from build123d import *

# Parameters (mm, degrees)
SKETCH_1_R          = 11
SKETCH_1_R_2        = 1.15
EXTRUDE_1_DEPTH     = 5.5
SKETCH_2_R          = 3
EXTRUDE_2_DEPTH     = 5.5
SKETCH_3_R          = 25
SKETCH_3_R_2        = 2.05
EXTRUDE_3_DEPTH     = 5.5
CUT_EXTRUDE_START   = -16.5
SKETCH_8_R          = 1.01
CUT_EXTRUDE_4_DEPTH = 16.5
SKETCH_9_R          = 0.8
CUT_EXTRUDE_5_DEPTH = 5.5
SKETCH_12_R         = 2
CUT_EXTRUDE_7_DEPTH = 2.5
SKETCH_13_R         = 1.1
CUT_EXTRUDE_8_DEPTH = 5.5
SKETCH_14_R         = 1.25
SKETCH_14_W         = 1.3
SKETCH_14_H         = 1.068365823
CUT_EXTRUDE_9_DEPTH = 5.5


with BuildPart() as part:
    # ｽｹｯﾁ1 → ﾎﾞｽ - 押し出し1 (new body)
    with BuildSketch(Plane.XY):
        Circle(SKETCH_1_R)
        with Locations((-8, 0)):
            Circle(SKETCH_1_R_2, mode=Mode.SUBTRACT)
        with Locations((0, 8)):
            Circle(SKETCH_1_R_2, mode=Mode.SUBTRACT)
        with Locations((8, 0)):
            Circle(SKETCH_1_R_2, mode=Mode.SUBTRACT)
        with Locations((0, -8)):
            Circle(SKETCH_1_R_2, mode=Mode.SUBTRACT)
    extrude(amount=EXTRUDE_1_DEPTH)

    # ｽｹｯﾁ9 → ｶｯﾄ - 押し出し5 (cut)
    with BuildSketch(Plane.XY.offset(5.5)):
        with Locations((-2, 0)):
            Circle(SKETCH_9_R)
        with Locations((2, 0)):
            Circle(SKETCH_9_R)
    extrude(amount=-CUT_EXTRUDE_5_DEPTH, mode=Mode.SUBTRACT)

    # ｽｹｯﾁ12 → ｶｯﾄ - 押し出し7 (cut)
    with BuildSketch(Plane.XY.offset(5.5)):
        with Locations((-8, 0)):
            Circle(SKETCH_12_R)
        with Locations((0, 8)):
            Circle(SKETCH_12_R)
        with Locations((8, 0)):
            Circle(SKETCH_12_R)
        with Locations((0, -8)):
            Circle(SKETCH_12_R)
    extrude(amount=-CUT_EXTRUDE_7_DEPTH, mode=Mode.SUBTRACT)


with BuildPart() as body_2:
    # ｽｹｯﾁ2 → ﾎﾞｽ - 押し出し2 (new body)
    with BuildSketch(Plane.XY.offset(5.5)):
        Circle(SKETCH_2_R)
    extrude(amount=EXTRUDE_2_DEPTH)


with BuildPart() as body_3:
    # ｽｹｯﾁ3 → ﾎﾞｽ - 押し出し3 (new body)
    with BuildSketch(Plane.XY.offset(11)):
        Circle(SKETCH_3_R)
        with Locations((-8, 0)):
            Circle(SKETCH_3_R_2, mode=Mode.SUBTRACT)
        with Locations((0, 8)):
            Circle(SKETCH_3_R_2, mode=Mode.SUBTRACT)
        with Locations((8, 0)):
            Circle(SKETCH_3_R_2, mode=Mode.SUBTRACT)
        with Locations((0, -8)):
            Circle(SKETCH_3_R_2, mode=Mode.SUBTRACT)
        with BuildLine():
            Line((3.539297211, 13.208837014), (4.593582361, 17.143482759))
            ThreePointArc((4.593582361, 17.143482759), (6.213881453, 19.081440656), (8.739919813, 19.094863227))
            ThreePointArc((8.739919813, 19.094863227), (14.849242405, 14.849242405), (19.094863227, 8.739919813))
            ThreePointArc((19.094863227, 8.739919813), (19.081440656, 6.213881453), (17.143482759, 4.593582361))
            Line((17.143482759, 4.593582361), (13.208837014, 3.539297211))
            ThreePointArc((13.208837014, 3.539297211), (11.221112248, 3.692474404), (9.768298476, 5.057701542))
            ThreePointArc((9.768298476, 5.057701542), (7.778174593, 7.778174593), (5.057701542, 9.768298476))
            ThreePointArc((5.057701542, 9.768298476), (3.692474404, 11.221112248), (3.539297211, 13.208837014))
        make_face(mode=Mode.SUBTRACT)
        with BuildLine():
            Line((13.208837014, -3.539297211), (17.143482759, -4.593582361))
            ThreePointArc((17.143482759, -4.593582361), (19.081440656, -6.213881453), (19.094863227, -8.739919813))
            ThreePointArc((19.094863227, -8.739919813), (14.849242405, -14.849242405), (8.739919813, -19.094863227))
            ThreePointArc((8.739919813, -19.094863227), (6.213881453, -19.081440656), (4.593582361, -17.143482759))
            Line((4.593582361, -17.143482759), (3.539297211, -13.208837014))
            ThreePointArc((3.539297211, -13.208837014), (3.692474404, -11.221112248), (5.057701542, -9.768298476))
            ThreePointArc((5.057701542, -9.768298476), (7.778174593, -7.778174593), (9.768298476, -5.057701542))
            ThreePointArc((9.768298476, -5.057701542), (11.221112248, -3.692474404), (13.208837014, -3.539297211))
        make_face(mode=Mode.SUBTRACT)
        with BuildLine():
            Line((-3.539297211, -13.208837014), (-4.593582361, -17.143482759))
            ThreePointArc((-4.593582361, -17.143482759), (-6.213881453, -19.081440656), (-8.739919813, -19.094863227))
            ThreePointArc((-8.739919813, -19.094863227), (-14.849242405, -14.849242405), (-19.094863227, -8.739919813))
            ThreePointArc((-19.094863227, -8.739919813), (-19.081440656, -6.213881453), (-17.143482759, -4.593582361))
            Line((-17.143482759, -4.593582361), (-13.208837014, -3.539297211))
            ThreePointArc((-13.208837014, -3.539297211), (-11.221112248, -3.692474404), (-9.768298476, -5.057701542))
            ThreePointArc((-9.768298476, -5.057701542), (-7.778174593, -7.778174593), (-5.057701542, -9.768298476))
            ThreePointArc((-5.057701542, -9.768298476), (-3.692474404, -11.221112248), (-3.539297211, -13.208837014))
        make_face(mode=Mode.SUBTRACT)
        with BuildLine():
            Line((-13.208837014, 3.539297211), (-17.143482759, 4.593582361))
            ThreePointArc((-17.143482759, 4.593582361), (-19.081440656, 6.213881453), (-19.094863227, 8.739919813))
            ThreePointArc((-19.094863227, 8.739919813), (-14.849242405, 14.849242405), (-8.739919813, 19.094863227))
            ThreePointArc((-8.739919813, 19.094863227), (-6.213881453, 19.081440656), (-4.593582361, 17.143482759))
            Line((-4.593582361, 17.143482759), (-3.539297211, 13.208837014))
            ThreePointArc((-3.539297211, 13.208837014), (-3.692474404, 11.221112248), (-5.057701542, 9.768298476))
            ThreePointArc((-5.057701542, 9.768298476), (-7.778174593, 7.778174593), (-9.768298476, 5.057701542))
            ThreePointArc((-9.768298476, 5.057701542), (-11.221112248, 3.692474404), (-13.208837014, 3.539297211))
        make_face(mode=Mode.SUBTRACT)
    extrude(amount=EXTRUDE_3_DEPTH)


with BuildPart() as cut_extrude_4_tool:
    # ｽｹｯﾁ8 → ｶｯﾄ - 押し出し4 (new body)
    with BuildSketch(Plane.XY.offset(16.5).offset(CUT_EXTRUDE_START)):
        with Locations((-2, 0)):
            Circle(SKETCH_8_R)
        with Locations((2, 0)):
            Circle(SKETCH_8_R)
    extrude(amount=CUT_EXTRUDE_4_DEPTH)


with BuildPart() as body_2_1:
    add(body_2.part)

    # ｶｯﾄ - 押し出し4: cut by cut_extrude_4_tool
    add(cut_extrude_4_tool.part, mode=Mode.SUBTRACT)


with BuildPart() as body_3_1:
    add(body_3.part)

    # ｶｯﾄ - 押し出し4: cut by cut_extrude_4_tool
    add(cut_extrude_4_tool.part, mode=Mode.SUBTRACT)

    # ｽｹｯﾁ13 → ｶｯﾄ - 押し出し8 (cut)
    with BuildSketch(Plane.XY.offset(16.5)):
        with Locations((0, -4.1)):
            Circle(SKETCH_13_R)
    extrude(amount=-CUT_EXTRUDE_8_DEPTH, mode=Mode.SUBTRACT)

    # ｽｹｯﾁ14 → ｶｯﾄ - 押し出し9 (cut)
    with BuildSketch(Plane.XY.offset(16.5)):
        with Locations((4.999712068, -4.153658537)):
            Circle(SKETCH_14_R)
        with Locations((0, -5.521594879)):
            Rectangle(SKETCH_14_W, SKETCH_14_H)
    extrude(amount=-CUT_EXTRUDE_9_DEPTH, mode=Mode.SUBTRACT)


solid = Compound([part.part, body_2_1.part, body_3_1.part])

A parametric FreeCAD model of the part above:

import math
import FreeCAD as App
import Part
import Sketcher
from FreeCAD import Vector
Q = App.Units.Quantity

doc = App.newDocument("Part")
params = doc.addObject("Spreadsheet::Sheet", "Params")
for row, (alias, value) in enumerate([
    ("sketch1_diameter", "22 mm"),
    ("sketch1_diameter2", "2.3 mm"),
    ("pad1_length", "5.5 mm"),
    ("sketch2_diameter", "1.6 mm"),
    ("pocket1_length", "5.5 mm"),
    ("sketch3_diameter", "4 mm"),
    ("pocket2_length", "2.5 mm"),
    ("sketch4_diameter", "6 mm"),
    ("pad2_length", "5.5 mm"),
    ("sketch5_diameter", "50 mm"),
    ("sketch5_radius", "3 mm"),
    ("sketch5_radius2", "21 mm"),
    ("sketch5_radius3", "11 mm"),
    ("sketch5_diameter2", "4.1 mm"),
    ("pad3_length", "5.5 mm"),
    ("sketch6_diameter", "2.02 mm"),
    ("pad4_length", "16.5 mm"),
    ("sketch7_diameter", "2.2 mm"),
    ("pocket3_length", "5.5 mm"),
    ("sketch8_diameter", "2.5 mm"),
    ("sketch8_width", "1.3 mm"),
    ("pocket4_length", "5.5 mm"),
], start=1):
    params.set(f"A{row}", alias)
    params.set(f"B{row}", "=" + value)
    params.setAlias(f"B{row}", alias)

body = doc.addObject("PartDesign::Body", "Body")

# Sketch on XY plane
sketch1 = body.newObject("Sketcher::SketchObject", "Sketch")
sketch1.AttachmentSupport = (doc.getObject("XY_Plane"), [""])
sketch1.MapMode = "FlatFace"
sketch1.addGeometry([
    Part.Circle(Vector(0, 0, 0), Vector(0, 0, 1), 11),  # 0
    Part.Circle(Vector(0, -8, 0), Vector(0, 0, 1), 1.15),  # 1
    Part.Circle(Vector(-8, 0, 0), Vector(0, 0, 1), 1.15),  # 2
    Part.Circle(Vector(8, 0, 0), Vector(0, 0, 1), 1.15),  # 3
    Part.Circle(Vector(0, 8, 0), Vector(0, 0, 1), 1.15),  # 4
], False)
sketch1.addConstraint([
    Sketcher.Constraint("Coincident", 0, 3, -1, 1),
    Sketcher.Constraint("Equal", 1, 2),
    Sketcher.Constraint("Equal", 2, 3),
    Sketcher.Constraint("Equal", 3, 4),
    Sketcher.Constraint("Symmetric", 2, 3, 3, 3, -1, 1),
    Sketcher.Constraint("Symmetric", 1, 3, 4, 3, -1, 1),
    Sketcher.Constraint("PointOnObject", 1, 3, -2),
    Sketcher.Constraint("PointOnObject", 2, 3, -1),
    Sketcher.Constraint("Diameter", 0, 22.0),
    Sketcher.Constraint("Diameter", 1, 2.3),
    Sketcher.Constraint("DistanceY", 1, 3, -1, 1, 8.0),
    Sketcher.Constraint("DistanceX", 2, 3, -1, 1, 8.0),
])
sketch1.setExpression("Constraints[8]", "Params.sketch1_diameter")
sketch1.setExpression("Constraints[9]", "Params.sketch1_diameter2")
pad1 = body.newObject("PartDesign::Pad", "Pad")
pad1.Profile = sketch1
pad1.setExpression("Length", "Params.pad1_length")

# Sketch on XY plane
sketch2 = body.newObject("Sketcher::SketchObject", "Sketch001")
sketch2.AttachmentSupport = (doc.getObject("XY_Plane"), [""])
sketch2.MapMode = "FlatFace"
sketch2.AttachmentOffset = App.Placement(Vector(0, 0, 5.5), App.Rotation())
sketch2.addGeometry([
    Part.Circle(Vector(-2, 0, 0), Vector(0, 0, 1), 0.8),
    Part.Circle(Vector(2, 0, 0), Vector(0, 0, 1), 0.8),
], False)
sketch2.addConstraint([
    Sketcher.Constraint("Equal", 0, 1),
    Sketcher.Constraint("Symmetric", 0, 3, 1, 3, -1, 1),
    Sketcher.Constraint("PointOnObject", 0, 3, -1),
    Sketcher.Constraint("Diameter", 0, 1.6),
    Sketcher.Constraint("DistanceX", 0, 3, -1, 1, 2.0),
])
sketch2.setExpression("Constraints[3]", "Params.sketch2_diameter")
pocket1 = body.newObject("PartDesign::Pocket", "Pocket")
pocket1.Profile = sketch2
pocket1.setExpression("Length", "Params.pocket1_length")

# Sketch on XY plane
sketch3 = body.newObject("Sketcher::SketchObject", "Sketch002")
sketch3.AttachmentSupport = (doc.getObject("XY_Plane"), [""])
sketch3.MapMode = "FlatFace"
sketch3.AttachmentOffset = App.Placement(Vector(0, 0, 5.5), App.Rotation())
sketch3.addGeometry([
    Part.Circle(Vector(-8, 0, 0), Vector(0, 0, 1), 2),
    Part.Circle(Vector(0, 8, 0), Vector(0, 0, 1), 2),
    Part.Circle(Vector(8, 0, 0), Vector(0, 0, 1), 2),
    Part.Circle(Vector(0, -8, 0), Vector(0, 0, 1), 2),
], False)
sketch3.addConstraint([
    Sketcher.Constraint("Equal", 0, 1),
    Sketcher.Constraint("Equal", 1, 2),
    Sketcher.Constraint("Equal", 2, 3),
    Sketcher.Constraint("Symmetric", 0, 3, 2, 3, -1, 1),
    Sketcher.Constraint("Symmetric", 1, 3, 3, 3, -1, 1),
    Sketcher.Constraint("PointOnObject", 0, 3, -1),
    Sketcher.Constraint("PointOnObject", 1, 3, -2),
    Sketcher.Constraint("Diameter", 0, 4.0),
    Sketcher.Constraint("DistanceX", 0, 3, -1, 1, 8.0),
    Sketcher.Constraint("DistanceY", -1, 1, 1, 3, 8.0),
])
sketch3.setExpression("Constraints[7]", "Params.sketch3_diameter")
pocket2 = body.newObject("PartDesign::Pocket", "Pocket001")
pocket2.Profile = sketch3
pocket2.setExpression("Length", "Params.pocket2_length")
body2 = doc.addObject("PartDesign::Body", "Body001")

# Sketch on XY plane
sketch4 = body2.newObject("Sketcher::SketchObject", "Sketch003")
sketch4.AttachmentSupport = (doc.getObject("XY_Plane001"), [""])
sketch4.MapMode = "FlatFace"
sketch4.AttachmentOffset = App.Placement(Vector(0, 0, 5.5), App.Rotation())
sketch4.addGeometry(Part.Circle(Vector(0, 0, 0), Vector(0, 0, 1), 3), False)
sketch4.addConstraint([
    Sketcher.Constraint("Coincident", 0, 3, -1, 1),
    Sketcher.Constraint("Diameter", 0, 6.0),
])
sketch4.setExpression("Constraints[1]", "Params.sketch4_diameter")
pad2 = body2.newObject("PartDesign::Pad", "Pad001")
pad2.Profile = sketch4
pad2.setExpression("Length", "Params.pad2_length")
body3 = doc.addObject("PartDesign::Body", "Body002")

# Sketch on XY plane
sketch5 = body3.newObject("Sketcher::SketchObject", "Sketch004")
sketch5.AttachmentSupport = (doc.getObject("XY_Plane002"), [""])
sketch5.MapMode = "FlatFace"
sketch5.AttachmentOffset = App.Placement(Vector(0, 0, 11), App.Rotation())
sketch5.addGeometry([
    Part.Circle(Vector(0, 0, 0), Vector(0, 0, 1), 25),  # 0
    Part.ArcOfCircle(Part.Circle(Vector(-6.437075, -12.43238, 0), Vector(0, 0, 1), 3), math.radians(-15), math.radians(62.626375)),  # 1
    Part.LineSegment(Vector(-3.539297, -13.208837, 0), Vector(-4.593582, -17.143483, 0)),  # 2
    Part.ArcOfCircle(Part.Circle(Vector(-7.49136, -16.367026, 0), Vector(0, 0, 1), 3), math.radians(-114.594068), math.radians(-15)),  # 3
    Part.ArcOfCircle(Part.Circle(Vector(0, 0, 0), Vector(0, 0, 1), 21), math.radians(-155.405932), math.radians(-114.594068)),  # 4
    Part.ArcOfCircle(Part.Circle(Vector(-16.367026, -7.49136, 0), Vector(0, 0, 1), 3), math.radians(105), math.radians(204.594068)),  # 5
    Part.LineSegment(Vector(-17.143483, -4.593582, 0), Vector(-13.208837, -3.539297, 0)),  # 6
    Part.ArcOfCircle(Part.Circle(Vector(-12.43238, -6.437075, 0), Vector(0, 0, 1), 3), math.radians(27.373625), math.radians(105)),  # 7
    Part.ArcOfCircle(Part.Circle(Vector(0, 0, 0), Vector(0, 0, 1), 11), math.radians(-152.626375), math.radians(-117.373625)),  # 8
    Part.Circle(Vector(-8, 0, 0), Vector(0, 0, 1), 2.05),  # 9
    Part.ArcOfCircle(Part.Circle(Vector(12.43238, -6.437075, 0), Vector(0, 0, 1), 3), math.radians(75), math.radians(152.626375)),  # 10
    Part.LineSegment(Vector(13.208837, -3.539297, 0), Vector(17.143483, -4.593582, 0)),  # 11
    Part.ArcOfCircle(Part.Circle(Vector(16.367026, -7.49136, 0), Vector(0, 0, 1), 3), math.radians(-24.594068), math.radians(75)),  # 12
    Part.ArcOfCircle(Part.Circle(Vector(0, 0, 0), Vector(0, 0, 1), 21), math.radians(-65.405932), math.radians(-24.594068)),  # 13
    Part.ArcOfCircle(Part.Circle(Vector(7.49136, -16.367026, 0), Vector(0, 0, 1), 3), math.radians(-165), math.radians(-65.405932)),  # 14
    Part.LineSegment(Vector(4.593582, -17.143483, 0), Vector(3.539297, -13.208837, 0)),  # 15
    Part.ArcOfCircle(Part.Circle(Vector(6.437075, -12.43238, 0), Vector(0, 0, 1), 3), math.radians(117.373625), math.radians(195)),  # 16
    Part.ArcOfCircle(Part.Circle(Vector(0, 0, 0), Vector(0, 0, 1), 11), math.radians(-62.626375), math.radians(-27.373625)),  # 17
    Part.Circle(Vector(0, -8, 0), Vector(0, 0, 1), 2.05),  # 18
    Part.Circle(Vector(8, 0, 0), Vector(0, 0, 1), 2.05),  # 19
    Part.ArcOfCircle(Part.Circle(Vector(-12.43238, 6.437075, 0), Vector(0, 0, 1), 3), math.radians(-105), math.radians(-27.373625)),  # 20
    Part.LineSegment(Vector(-13.208837, 3.539297, 0), Vector(-17.143483, 4.593582, 0)),  # 21
    Part.ArcOfCircle(Part.Circle(Vector(-16.367026, 7.49136, 0), Vector(0, 0, 1), 3), math.radians(155.405932), math.radians(255)),  # 22
    Part.ArcOfCircle(Part.Circle(Vector(0, 0, 0), Vector(0, 0, 1), 21), math.radians(114.594068), math.radians(155.405932)),  # 23
    Part.ArcOfCircle(Part.Circle(Vector(-7.49136, 16.367026, 0), Vector(0, 0, 1), 3), math.radians(15), math.radians(114.594068)),  # 24
    Part.LineSegment(Vector(-4.593582, 17.143483, 0), Vector(-3.539297, 13.208837, 0)),  # 25
    Part.ArcOfCircle(Part.Circle(Vector(-6.437075, 12.43238, 0), Vector(0, 0, 1), 3), math.radians(-62.626375), math.radians(15)),  # 26
    Part.ArcOfCircle(Part.Circle(Vector(0, 0, 0), Vector(0, 0, 1), 11), math.radians(117.373625), math.radians(152.626375)),  # 27
    Part.Circle(Vector(0, 8, 0), Vector(0, 0, 1), 2.05),  # 28
    Part.ArcOfCircle(Part.Circle(Vector(6.437075, 12.43238, 0), Vector(0, 0, 1), 3), math.radians(165), math.radians(242.626375)),  # 29
    Part.LineSegment(Vector(3.539297, 13.208837, 0), Vector(4.593582, 17.143483, 0)),  # 30
    Part.ArcOfCircle(Part.Circle(Vector(7.49136, 16.367026, 0), Vector(0, 0, 1), 3), math.radians(65.405932), math.radians(165)),  # 31
    Part.ArcOfCircle(Part.Circle(Vector(0, 0, 0), Vector(0, 0, 1), 21), math.radians(24.594068), math.radians(65.405932)),  # 32
    Part.ArcOfCircle(Part.Circle(Vector(16.367026, 7.49136, 0), Vector(0, 0, 1), 3), math.radians(-75), math.radians(24.594068)),  # 33
    Part.LineSegment(Vector(17.143483, 4.593582, 0), Vector(13.208837, 3.539297, 0)),  # 34
    Part.ArcOfCircle(Part.Circle(Vector(12.43238, 6.437075, 0), Vector(0, 0, 1), 3), math.radians(-152.626375), math.radians(-75)),  # 35
    Part.ArcOfCircle(Part.Circle(Vector(0, 0, 0), Vector(0, 0, 1), 11), math.radians(27.373625), math.radians(62.626375)),  # 36
], False)
sketch5.addConstraint([
    Sketcher.Constraint("Tangent", 1, 1, 2, 1),
    Sketcher.Constraint("Tangent", 2, 2, 3, 2),
    Sketcher.Constraint("Tangent", 3, 1, 4, 2),
    Sketcher.Constraint("Tangent", 4, 1, 5, 2),
    Sketcher.Constraint("Tangent", 5, 1, 6, 1),
    Sketcher.Constraint("Tangent", 6, 2, 7, 2),
    Sketcher.Constraint("Tangent", 7, 1, 8, 1),
    Sketcher.Constraint("Tangent", 8, 2, 1, 2),
    Sketcher.Constraint("Tangent", 10, 1, 11, 1),
    Sketcher.Constraint("Tangent", 11, 2, 12, 2),
    Sketcher.Constraint("Tangent", 12, 1, 13, 2),
    Sketcher.Constraint("Tangent", 13, 1, 14, 2),
    Sketcher.Constraint("Tangent", 14, 1, 15, 1),
    Sketcher.Constraint("Tangent", 15, 2, 16, 2),
    Sketcher.Constraint("Tangent", 16, 1, 17, 1),
    Sketcher.Constraint("Tangent", 17, 2, 10, 2),
    Sketcher.Constraint("Tangent", 20, 1, 21, 1),
    Sketcher.Constraint("Tangent", 21, 2, 22, 2),
    Sketcher.Constraint("Tangent", 22, 1, 23, 2),
    Sketcher.Constraint("Tangent", 23, 1, 24, 2),
    Sketcher.Constraint("Tangent", 24, 1, 25, 1),
    Sketcher.Constraint("Tangent", 25, 2, 26, 2),
    Sketcher.Constraint("Tangent", 26, 1, 27, 1),
    Sketcher.Constraint("Tangent", 27, 2, 20, 2),
    Sketcher.Constraint("Tangent", 29, 1, 30, 1),
    Sketcher.Constraint("Tangent", 30, 2, 31, 2),
    Sketcher.Constraint("Tangent", 31, 1, 32, 2),
    Sketcher.Constraint("Tangent", 32, 1, 33, 2),
    Sketcher.Constraint("Tangent", 33, 1, 34, 1),
    Sketcher.Constraint("Tangent", 34, 2, 35, 2),
    Sketcher.Constraint("Tangent", 35, 1, 36, 1),
    Sketcher.Constraint("Tangent", 36, 2, 29, 2),
    Sketcher.Constraint("Coincident", 0, 3, -1, 1),
    Sketcher.Constraint("Coincident", 4, 3, -1, 1),
    Sketcher.Constraint("Coincident", 8, 3, -1, 1),
    Sketcher.Constraint("Coincident", 13, 3, -1, 1),
    Sketcher.Constraint("Coincident", 17, 3, -1, 1),
    Sketcher.Constraint("Coincident", 23, 3, -1, 1),
    Sketcher.Constraint("Coincident", 27, 3, -1, 1),
    Sketcher.Constraint("Coincident", 32, 3, -1, 1),
    Sketcher.Constraint("Coincident", 36, 3, -1, 1),
    Sketcher.Constraint("Equal", 1, 3),
    Sketcher.Constraint("Equal", 3, 5),
    Sketcher.Constraint("Equal", 5, 7),
    Sketcher.Constraint("Equal", 7, 10),
    Sketcher.Constraint("Equal", 10, 12),
    Sketcher.Constraint("Equal", 4, 13),
    Sketcher.Constraint("Equal", 12, 14),
    Sketcher.Constraint("Equal", 14, 16),
    Sketcher.Constraint("Equal", 8, 17),
    Sketcher.Constraint("Equal", 9, 18),
    Sketcher.Constraint("Equal", 18, 19),
    Sketcher.Constraint("Equal", 16, 20),
    Sketcher.Constraint("Equal", 20, 22),
    Sketcher.Constraint("Equal", 13, 23),
    Sketcher.Constraint("Equal", 22, 24),
    Sketcher.Constraint("Equal", 24, 26),
    Sketcher.Constraint("Equal", 17, 27),
    Sketcher.Constraint("Equal", 19, 28),
    Sketcher.Constraint("Equal", 26, 29),
    Sketcher.Constraint("Equal", 29, 31),
    Sketcher.Constraint("Equal", 23, 32),
    Sketcher.Constraint("Equal", 31, 33),
    Sketcher.Constraint("Equal", 33, 35),
    Sketcher.Constraint("Equal", 27, 36),
    Sketcher.Constraint("Symmetric", 9, 3, 19, 3, -1, 1),
    Sketcher.Constraint("Symmetric", 18, 3, 28, 3, -1, 1),
    Sketcher.Constraint("Symmetric", 10, 1, 20, 1, -1, 1),
    Sketcher.Constraint("Symmetric", 14, 1, 24, 1, -1, 1),
    Sketcher.Constraint("Symmetric", 1, 1, 29, 1, -1, 1),
    Sketcher.Constraint("Symmetric", 5, 1, 33, 1, -1, 1),
    Sketcher.Constraint("Symmetric", 6, 2, 10, 1, -2),
    Sketcher.Constraint("Symmetric", 2, 2, 14, 1, -2),
    Sketcher.Constraint("PointOnObject", 9, 3, -1),
    Sketcher.Constraint("PointOnObject", 18, 3, -2),
    Sketcher.Constraint("Perpendicular", 2, 11),
    Sketcher.Constraint("Equal", 2, 6),
    Sketcher.Constraint("Diameter", 0, 50.0),
    Sketcher.Constraint("Radius", 1, 3.0),
    Sketcher.Constraint("Radius", 4, 21.0),
    Sketcher.Constraint("Radius", 8, 11.0),
    Sketcher.Constraint("Diameter", 9, 4.1),
    Sketcher.Constraint("Angle", 2, Q("-105 deg")),
    Sketcher.Constraint("DistanceX", 9, 3, -1, 1, 8.0),
    Sketcher.Constraint("DistanceY", 18, 3, -1, 1, 8.0),
    Sketcher.Constraint("DistanceX", 7, 1, -1, 1, 9.768298),
])
sketch5.setExpression("Constraints[77]", "Params.sketch5_diameter")
sketch5.setExpression("Constraints[78]", "Params.sketch5_radius")
sketch5.setExpression("Constraints[79]", "Params.sketch5_radius2")
sketch5.setExpression("Constraints[80]", "Params.sketch5_radius3")
sketch5.setExpression("Constraints[81]", "Params.sketch5_diameter2")
pad3 = body3.newObject("PartDesign::Pad", "Pad002")
pad3.Profile = sketch5
pad3.setExpression("Length", "Params.pad3_length")
body4 = doc.addObject("PartDesign::Body", "Body003")
body4.AllowCompound = True

# Sketch on XY plane
sketch6 = body4.newObject("Sketcher::SketchObject", "Sketch005")
sketch6.AttachmentSupport = (doc.getObject("XY_Plane003"), [""])
sketch6.MapMode = "FlatFace"
sketch6.addGeometry([
    Part.Circle(Vector(-2, 0, 0), Vector(0, 0, 1), 1.01),
    Part.Circle(Vector(2, 0, 0), Vector(0, 0, 1), 1.01),
], False)
sketch6.addConstraint([
    Sketcher.Constraint("Equal", 0, 1),
    Sketcher.Constraint("Symmetric", 0, 3, 1, 3, -1, 1),
    Sketcher.Constraint("PointOnObject", 0, 3, -1),
    Sketcher.Constraint("Diameter", 0, 2.02),
    Sketcher.Constraint("DistanceX", 0, 3, -1, 1, 2.0),
])
sketch6.setExpression("Constraints[3]", "Params.sketch6_diameter")
pad4 = body4.newObject("PartDesign::Pad", "Pad003")
pad4.Profile = sketch6
pad4.setExpression("Length", "Params.pad4_length")
doc.recompute()

body5 = doc.addObject("PartDesign::Body", "Body004")
body5.BaseFeature = body4
boolean = body2.newObject("PartDesign::Boolean", "Boolean")
boolean.Type = "Cut"
boolean.addObjects([body5])
doc.recompute()

boolean2 = body3.newObject("PartDesign::Boolean", "Boolean001")
boolean2.Type = "Cut"
boolean2.addObjects([body4])

# Sketch on XY plane
sketch7 = body3.newObject("Sketcher::SketchObject", "Sketch006")
sketch7.AttachmentSupport = (doc.getObject("XY_Plane002"), [""])
sketch7.MapMode = "FlatFace"
sketch7.AttachmentOffset = App.Placement(Vector(0, 0, 16.5), App.Rotation())
sketch7.addGeometry(Part.Circle(Vector(0, -4.1, 0), Vector(0, 0, 1), 1.1), False)
sketch7.addConstraint([
    Sketcher.Constraint("PointOnObject", 0, 3, -2),
    Sketcher.Constraint("Diameter", 0, 2.2),
    Sketcher.Constraint("DistanceY", 0, 3, -1, 1, 4.1),
])
sketch7.setExpression("Constraints[1]", "Params.sketch7_diameter")
pocket3 = body3.newObject("PartDesign::Pocket", "Pocket002")
pocket3.Profile = sketch7
pocket3.setExpression("Length", "Params.pocket3_length")

# Sketch on XY plane
sketch8 = body3.newObject("Sketcher::SketchObject", "Sketch007")
sketch8.AttachmentSupport = (doc.getObject("XY_Plane002"), [""])
sketch8.MapMode = "FlatFace"
sketch8.AttachmentOffset = App.Placement(Vector(0, 0, 16.5), App.Rotation())
sketch8.addGeometry([
    Part.Circle(Vector(4.999712, -4.153659, 0), Vector(0, 0, 1), 1.25),  # 0
    Part.LineSegment(Vector(-0.65, -4.987412, 0), Vector(-0.65, -6.055778, 0)),  # 1
    Part.LineSegment(Vector(-0.65, -6.055778, 0), Vector(0.65, -6.055778, 0)),  # 2
    Part.LineSegment(Vector(0.65, -6.055778, 0), Vector(0.65, -4.987412, 0)),  # 3
    Part.LineSegment(Vector(0.65, -4.987412, 0), Vector(-0.65, -4.987412, 0)),  # 4
], False)
sketch8.addConstraint([
    Sketcher.Constraint("Coincident", 1, 2, 2, 1),
    Sketcher.Constraint("Coincident", 2, 2, 3, 1),
    Sketcher.Constraint("Coincident", 3, 2, 4, 1),
    Sketcher.Constraint("Coincident", 4, 2, 1, 1),
    Sketcher.Constraint("Vertical", 1),
    Sketcher.Constraint("Horizontal", 2),
    Sketcher.Constraint("Vertical", 3),
    Sketcher.Constraint("Horizontal", 4),
    Sketcher.Constraint("Diameter", 0, 2.5),
    Sketcher.Constraint("DistanceX", 2, 1, 2, 2, 1.3),
    Sketcher.Constraint("DistanceX", 1, 2, -1, 1, 0.65),
    Sketcher.Constraint("DistanceY", 1, 2, 1, 1, 1.068366),
    Sketcher.Constraint("DistanceY", 0, 3, -1, 1, 4.153659),
    Sketcher.Constraint("DistanceY", 3, 2, -1, 1, 4.987412),
    Sketcher.Constraint("DistanceX", -1, 1, 0, 3, 4.999712),
])
sketch8.setExpression("Constraints[8]", "Params.sketch8_diameter")
sketch8.setExpression("Constraints[9]", "Params.sketch8_width")
pocket4 = body3.newObject("PartDesign::Pocket", "Pocket003")
pocket4.Profile = sketch8
pocket4.setExpression("Length", "Params.pocket4_length")

doc.recompute()
